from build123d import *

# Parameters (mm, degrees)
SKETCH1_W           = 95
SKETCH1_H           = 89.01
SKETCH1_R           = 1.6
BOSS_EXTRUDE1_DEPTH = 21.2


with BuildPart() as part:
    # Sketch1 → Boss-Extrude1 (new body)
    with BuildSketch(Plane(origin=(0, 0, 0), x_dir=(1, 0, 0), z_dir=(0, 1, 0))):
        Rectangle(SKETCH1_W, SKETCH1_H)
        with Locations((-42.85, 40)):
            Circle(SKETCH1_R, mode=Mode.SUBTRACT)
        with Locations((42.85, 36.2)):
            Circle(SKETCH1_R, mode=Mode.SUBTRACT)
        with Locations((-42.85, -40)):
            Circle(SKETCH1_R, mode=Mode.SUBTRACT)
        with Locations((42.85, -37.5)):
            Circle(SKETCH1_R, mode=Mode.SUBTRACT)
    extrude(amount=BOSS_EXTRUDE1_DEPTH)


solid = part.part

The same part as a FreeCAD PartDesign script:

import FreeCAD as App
import Part
import Sketcher


def add_polygon(sketch, points):
    """Adds a closed chain of lines whose ends are joined by coincident constraints."""
    first, n = sketch.GeometryCount, len(points)
    for a, b in zip(points, points[1:] + points[:1]):
        sketch.addGeometry(Part.LineSegment(App.Vector(*a, 0), App.Vector(*b, 0)), False)
    for i in range(n):
        sketch.addConstraint(Sketcher.Constraint("Coincident", first + i, 2, first + (i + 1) % n, 1))

doc = App.newDocument("Part")
body = doc.addObject("PartDesign::Body", "Body")

sketch1 = body.newObject("Sketcher::SketchObject", "Sketch")
sketch1.AttachmentSupport = (doc.getObject("XZ_Plane"), [""])
sketch1.MapMode = "FlatFace"
add_polygon(sketch1, [(-47.5, -44.5), (-47.5, 44.5), (47.5, 44.5), (47.5, -44.5)])
sketch1.addGeometry(Part.Circle(App.Vector(-42.9, 40, 0), App.Vector(0, 0, 1), 1.6), False)
sketch1.addGeometry(Part.Circle(App.Vector(42.9, 37.5, 0), App.Vector(0, 0, 1), 1.6), False)
sketch1.addGeometry(Part.Circle(App.Vector(-42.9, -40, 0), App.Vector(0, 0, 1), 1.6), False)
sketch1.addGeometry(Part.Circle(App.Vector(42.9, -36.2, 0), App.Vector(0, 0, 1), 1.6), False)
sketch1.addConstraint([
    Sketcher.Constraint("Vertical", 0),
    Sketcher.Constraint("Horizontal", 1),
    Sketcher.Constraint("Vertical", 2),
    Sketcher.Constraint("Horizontal", 3),
    Sketcher.Constraint("Equal", 4, 5),
    Sketcher.Constraint("Equal", 5, 6),
    Sketcher.Constraint("Equal", 6, 7),
    Sketcher.Constraint("Symmetric", 0, 2, 2, 2, -1, 1),
    Sketcher.Constraint("Symmetric", 4, 3, 6, 3, -1),
    Sketcher.Constraint("Vertical", 5, 3, 7, 3),
    Sketcher.Constraint("Diameter", 4, 3.2),
    Sketcher.Constraint("DistanceX", 1, 1, 1, 2, 95.0),
    Sketcher.Constraint("DistanceY", -1, 1, 4, 3, 40.0),
    Sketcher.Constraint("DistanceY", 0, 1, 0, 2, 89.01),
    Sketcher.Constraint("DistanceY", -1, 1, 5, 3, 37.5),
    Sketcher.Constraint("DistanceY", 7, 3, -1, 1, 36.2),
    Sketcher.Constraint("DistanceX", 4, 3, 5, 3, 85.7),
    Sketcher.Constraint("DistanceX", 4, 3, -1, 1, 42.85),
])
pad1 = body.newObject("PartDesign::Pad", "Pad")
pad1.Profile = sketch1
pad1.Length = 21.2
pad1.Reversed = True

doc.recompute()
